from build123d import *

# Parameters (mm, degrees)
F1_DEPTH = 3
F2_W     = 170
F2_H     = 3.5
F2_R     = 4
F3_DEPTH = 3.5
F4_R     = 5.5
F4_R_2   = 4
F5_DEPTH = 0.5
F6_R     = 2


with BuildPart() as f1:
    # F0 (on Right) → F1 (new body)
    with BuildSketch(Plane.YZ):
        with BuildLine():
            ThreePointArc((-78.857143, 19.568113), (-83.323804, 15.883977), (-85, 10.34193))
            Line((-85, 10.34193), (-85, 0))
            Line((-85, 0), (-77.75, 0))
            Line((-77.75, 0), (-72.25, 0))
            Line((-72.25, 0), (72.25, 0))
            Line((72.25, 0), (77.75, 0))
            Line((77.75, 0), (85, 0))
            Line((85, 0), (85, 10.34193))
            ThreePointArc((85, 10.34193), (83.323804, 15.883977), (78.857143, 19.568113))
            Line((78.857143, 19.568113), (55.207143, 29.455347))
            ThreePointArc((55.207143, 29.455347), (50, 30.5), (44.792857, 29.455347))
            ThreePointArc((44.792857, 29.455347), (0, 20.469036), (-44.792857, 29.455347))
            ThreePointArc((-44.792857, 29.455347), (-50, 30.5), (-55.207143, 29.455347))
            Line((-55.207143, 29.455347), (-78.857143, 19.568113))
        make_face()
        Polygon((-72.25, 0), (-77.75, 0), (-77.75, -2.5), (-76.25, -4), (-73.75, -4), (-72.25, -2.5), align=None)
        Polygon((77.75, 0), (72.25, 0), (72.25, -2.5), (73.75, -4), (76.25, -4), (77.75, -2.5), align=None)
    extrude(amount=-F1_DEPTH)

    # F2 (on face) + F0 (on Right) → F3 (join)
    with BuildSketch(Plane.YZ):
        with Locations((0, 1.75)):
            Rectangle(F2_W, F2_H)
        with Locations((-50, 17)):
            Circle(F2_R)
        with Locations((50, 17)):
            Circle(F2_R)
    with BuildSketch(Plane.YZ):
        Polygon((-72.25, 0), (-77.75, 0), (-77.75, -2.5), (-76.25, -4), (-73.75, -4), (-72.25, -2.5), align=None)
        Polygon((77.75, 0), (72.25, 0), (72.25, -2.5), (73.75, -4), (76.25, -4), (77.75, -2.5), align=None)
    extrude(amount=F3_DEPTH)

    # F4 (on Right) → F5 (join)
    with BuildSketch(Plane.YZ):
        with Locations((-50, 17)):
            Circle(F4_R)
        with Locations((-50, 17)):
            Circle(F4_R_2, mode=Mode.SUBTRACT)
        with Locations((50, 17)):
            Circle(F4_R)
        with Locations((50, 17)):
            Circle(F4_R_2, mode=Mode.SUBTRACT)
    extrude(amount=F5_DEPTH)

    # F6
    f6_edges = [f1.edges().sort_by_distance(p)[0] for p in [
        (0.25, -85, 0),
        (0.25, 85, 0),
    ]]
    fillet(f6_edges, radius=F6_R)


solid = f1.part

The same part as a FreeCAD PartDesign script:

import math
import FreeCAD as App
import Part
import Sketcher


def edges_at(feature, points):
    """Names of the edges that pass closest to the given points."""
    edges = feature.Shape.Edges
    near = lambda p: min(range(len(edges)), key=lambda i: edges[i].distToShape(Part.Vertex(*p))[0])
    return sorted({f"Edge{near(p) + 1}" for p in points})

doc = App.newDocument("Part")
params = doc.addObject("Spreadsheet::Sheet", "Params")
for row, (alias, value) in enumerate([
    ("sketch1_radius", "10.000001 mm"),
    ("sketch1_radius2", "10.000001 mm"),
    ("sketch1_width", "2.5 mm"),
    ("sketch1_width2", "144.5 mm"),
    ("sketch1_width3", "2.5 mm"),
    ("pad1_length", "3 mm"),
    ("sketch2_diameter", "8 mm"),
    ("sketch2_width", "170 mm"),
    ("sketch2_width2", "2.5 mm"),
    ("sketch2_width3", "144.5 mm"),
    ("sketch2_height", "3.5 mm"),
    ("pad2_length", "3.5 mm"),
    ("sketch3_diameter", "11 mm"),
    ("sketch3_diameter2", "8 mm"),
    ("pad3_length", "0.5 mm"),
    ("fillet_radius", "2 mm"),
], start=1):
    params.set(f"A{row}", alias)
    params.set(f"B{row}", "=" + value)
    params.setAlias(f"B{row}", alias)

body = doc.addObject("PartDesign::Body", "Body")

# Sketch on YZ plane
sketch1 = body.newObject("Sketcher::SketchObject", "Sketch")
sketch1.AttachmentSupport = (doc.getObject("YZ_Plane"), [""])
sketch1.MapMode = "FlatFace"
sketch1.addGeometry(Part.ArcOfCircle(Part.Circle(App.Vector(-74.999999, 10.341929, 0), App.Vector(0, 0, 1), 10.000001), math.radians(112.688097), math.radians(179.999997)), False)
sketch1.addGeometry(Part.LineSegment(App.Vector(-85, 10.34193, 0), App.Vector(-85, 0, 0)), False)
sketch1.addGeometry(Part.LineSegment(App.Vector(-85, 0, 0), App.Vector(-77.75, 0, 0)), False)
sketch1.addGeometry(Part.LineSegment(App.Vector(-77.75, 0, 0), App.Vector(-77.75, -2.5, 0)), False)
sketch1.addGeometry(Part.LineSegment(App.Vector(-77.75, -2.5, 0), App.Vector(-76.25, -4, 0)), False)
sketch1.addGeometry(Part.LineSegment(App.Vector(-76.25, -4, 0), App.Vector(-73.75, -4, 0)), False)
sketch1.addGeometry(Part.LineSegment(App.Vector(-73.75, -4, 0), App.Vector(-72.25, -2.5, 0)), False)
sketch1.addGeometry(Part.LineSegment(App.Vector(-72.25, -2.5, 0), App.Vector(-72.25, 0, 0)), False)
sketch1.addGeometry(Part.LineSegment(App.Vector(-72.25, 0, 0), App.Vector(72.25, 0, 0)), False)
sketch1.addGeometry(Part.LineSegment(App.Vector(72.25, 0, 0), App.Vector(72.25, -2.5, 0)), False)
sketch1.addGeometry(Part.LineSegment(App.Vector(72.25, -2.5, 0), App.Vector(73.75, -4, 0)), False)
sketch1.addGeometry(Part.LineSegment(App.Vector(73.75, -4, 0), App.Vector(76.25, -4, 0)), False)
sketch1.addGeometry(Part.LineSegment(App.Vector(76.25, -4, 0), App.Vector(77.75, -2.5, 0)), False)
sketch1.addGeometry(Part.LineSegment(App.Vector(77.75, -2.5, 0), App.Vector(77.75, 0, 0)), False)
sketch1.addGeometry(Part.LineSegment(App.Vector(77.75, 0, 0), App.Vector(85, 0, 0)), False)
sketch1.addGeometry(Part.LineSegment(App.Vector(85, 0, 0), App.Vector(85, 10.34193, 0)), False)
sketch1.addGeometry(Part.ArcOfCircle(Part.Circle(App.Vector(74.999999, 10.341929, 0), App.Vector(0, 0, 1), 10.000001), math.radians(0.000003), math.radians(67.311903)), False)
sketch1.addGeometry(Part.LineSegment(App.Vector(78.857143, 19.568113, 0), App.Vector(55.207143, 29.455347, 0)), False)
sketch1.addGeometry(Part.ArcOfCircle(Part.Circle(App.Vector(50, 16.999997, 0), App.Vector(0, 0, 1), 13.500003), math.radians(67.311914), math.radians(112.688086)), False)
sketch1.addGeometry(Part.ArcOfCircle(Part.Circle(App.Vector(0, 136.598659, 0), App.Vector(0, 0, 1), 116.129623), math.radians(-112.688092), math.radians(-67.311908)), False)
sketch1.addGeometry(Part.ArcOfCircle(Part.Circle(App.Vector(-50, 16.999997, 0), App.Vector(0, 0, 1), 13.500003), math.radians(67.311914), math.radians(112.688086)), False)
sketch1.addGeometry(Part.LineSegment(App.Vector(-55.207143, 29.455347, 0), App.Vector(-78.857143, 19.568113, 0)), False)
sketch1.addConstraint(Sketcher.Constraint("Coincident", 0, 2, 1, 1))
sketch1.addConstraint(Sketcher.Constraint("Coincident", 1, 2, 2, 1))
sketch1.addConstraint(Sketcher.Constraint("Coincident", 2, 2, 3, 1))
sketch1.addConstraint(Sketcher.Constraint("Coincident", 3, 2, 4, 1))
sketch1.addConstraint(Sketcher.Constraint("Coincident", 4, 2, 5, 1))
sketch1.addConstraint(Sketcher.Constraint("Coincident", 5, 2, 6, 1))
sketch1.addConstraint(Sketcher.Constraint("Coincident", 6, 2, 7, 1))
sketch1.addConstraint(Sketcher.Constraint("Coincident", 7, 2, 8, 1))
sketch1.addConstraint(Sketcher.Constraint("Coincident", 8, 2, 9, 1))
sketch1.addConstraint(Sketcher.Constraint("Coincident", 9, 2, 10, 1))
sketch1.addConstraint(Sketcher.Constraint("Coincident", 10, 2, 11, 1))
sketch1.addConstraint(Sketcher.Constraint("Coincident", 11, 2, 12, 1))
sketch1.addConstraint(Sketcher.Constraint("Coincident", 12, 2, 13, 1))
sketch1.addConstraint(Sketcher.Constraint("Coincident", 13, 2, 14, 1))
sketch1.addConstraint(Sketcher.Constraint("Coincident", 14, 2, 15, 1))
sketch1.addConstraint(Sketcher.Constraint("Coincident", 15, 2, 16, 1))
sketch1.addConstraint(Sketcher.Constraint("Coincident", 16, 2, 17, 1))
sketch1.addConstraint(Sketcher.Constraint("Coincident", 17, 2, 18, 1))
sketch1.addConstraint(Sketcher.Constraint("Coincident", 18, 2, 19, 2))
sketch1.addConstraint(Sketcher.Constraint("Coincident", 19, 1, 20, 1))
sketch1.addConstraint(Sketcher.Constraint("Coincident", 20, 2, 21, 1))
sketch1.addConstraint(Sketcher.Constraint("Coincident", 21, 2, 0, 1))
sketch1.addConstraint(Sketcher.Constraint("Vertical", 1))
sketch1.addConstraint(Sketcher.Constraint("Horizontal", 2))
sketch1.addConstraint(Sketcher.Constraint("Vertical", 3))
sketch1.addConstraint(Sketcher.Constraint("Horizontal", 5))
sketch1.addConstraint(Sketcher.Constraint("Vertical", 7))
sketch1.addConstraint(Sketcher.Constraint("Horizontal", 8))
sketch1.addConstraint(Sketcher.Constraint("Vertical", 9))
sketch1.addConstraint(Sketcher.Constraint("Horizontal", 11))
sketch1.addConstraint(Sketcher.Constraint("Vertical", 13))
sketch1.addConstraint(Sketcher.Constraint("Horizontal", 14))
sketch1.addConstraint(Sketcher.Constraint("Vertical", 15))
sketch1.addConstraint(Sketcher.Constraint("PointOnObject", 19, 3, -2))
sketch1.addConstraint(Sketcher.Constraint("PointOnObject", 1, 2, -1))
sketch1.addConstraint(Sketcher.Constraint("PointOnObject", 7, 2, -1))
sketch1.addConstraint(Sketcher.Constraint("PointOnObject", 13, 2, -1))
sketch1.addConstraint(Sketcher.Constraint("Radius", 0, 10.000001))
sketch1.addConstraint(Sketcher.Constraint("Radius", 16, 10.000001))
sketch1.addConstraint(Sketcher.Constraint("DistanceX", 5, 1, 5, 2, 2.5))
sketch1.addConstraint(Sketcher.Constraint("DistanceX", 8, 1, 8, 2, 144.5))
sketch1.addConstraint(Sketcher.Constraint("DistanceX", 11, 1, 11, 2, 2.5))
sketch1.addConstraint(Sketcher.Constraint("DistanceY", 3, 2, 3, 1, 2.5))
sketch1.addConstraint(Sketcher.Constraint("DistanceY", 7, 1, 7, 2, 2.5))
sketch1.addConstraint(Sketcher.Constraint("DistanceY", 9, 2, 9, 1, 2.5))
sketch1.addConstraint(Sketcher.Constraint("DistanceY", 13, 1, 13, 2, 2.5))
sketch1.addConstraint(Sketcher.Constraint("DistanceX", 0, 3, -1, 1, 74.999999))
sketch1.addConstraint(Sketcher.Constraint("DistanceX", -1, 1, 16, 3, 74.999999))
sketch1.addConstraint(Sketcher.Constraint("DistanceX", -1, 1, 18, 3, 50.0))
sketch1.addConstraint(Sketcher.Constraint("DistanceX", 20, 3, -1, 1, 50.0))
sketch1.addConstraint(Sketcher.Constraint("DistanceY", 4, 2, -1, 1, 4.0))
sketch1.addConstraint(Sketcher.Constraint("DistanceY", 10, 2, -1, 1, 4.0))
sketch1.addConstraint(Sketcher.Constraint("DistanceX", 3, 2, 5, 2, 4.0))
sketch1.addConstraint(Sketcher.Constraint("DistanceX", 4, 2, 6, 2, 4.0))
sketch1.addConstraint(Sketcher.Constraint("DistanceX", 9, 2, 11, 2, 4.0))
sketch1.addConstraint(Sketcher.Constraint("DistanceX", 10, 2, 12, 2, 4.0))
sketch1.addConstraint(Sketcher.Constraint("DistanceX", 2, 1, 2, 2, 7.25))
sketch1.addConstraint(Sketcher.Constraint("DistanceX", 17, 2, 16, 2, 23.65))
sketch1.addConstraint(Sketcher.Constraint("Radius", 18, 13.500003))
sketch1.addConstraint(Sketcher.Constraint("Radius", 19, 116.129623))
sketch1.addConstraint(Sketcher.Constraint("Radius", 20, 13.500003))
sketch1.addConstraint(Sketcher.Constraint("DistanceY", 1, 2, 1, 1, 10.34193))
sketch1.addConstraint(Sketcher.Constraint("DistanceY", 15, 1, 15, 2, 10.34193))
sketch1.addConstraint(Sketcher.Constraint("Distance", 17, 25.63357))
sketch1.addConstraint(Sketcher.Constraint("Distance", 21, 25.63357))
sketch1.addConstraint(Sketcher.Constraint("DistanceY", -1, 1, 0, 3, 10.341929))
sketch1.addConstraint(Sketcher.Constraint("DistanceY", -1, 1, 16, 3, 10.341929))
sketch1.addConstraint(Sketcher.Constraint("DistanceY", 18, 3, 17, 2, 12.45535))
sketch1.addConstraint(Sketcher.Constraint("DistanceY", 18, 3, 18, 2, 12.45535))
sketch1.addConstraint(Sketcher.Constraint("DistanceY", 20, 3, 19, 1, 12.45535))
sketch1.addConstraint(Sketcher.Constraint("DistanceY", 20, 3, 20, 2, 12.45535))
sketch1.setExpression("Constraints[37]", "Params.sketch1_radius")
sketch1.setExpression("Constraints[38]", "Params.sketch1_radius2")
sketch1.setExpression("Constraints[39]", "Params.sketch1_width")
sketch1.setExpression("Constraints[40]", "Params.sketch1_width2")
sketch1.setExpression("Constraints[41]", "Params.sketch1_width3")
pad1 = body.newObject("PartDesign::Pad", "Pad")
pad1.Profile = sketch1
pad1.setExpression("Length", "Params.pad1_length")
pad1.Reversed = True

# Sketch on YZ plane
sketch2 = body.newObject("Sketcher::SketchObject", "Sketch001")
sketch2.AttachmentSupport = (doc.getObject("YZ_Plane"), [""])
sketch2.MapMode = "FlatFace"
sketch2.addGeometry(Part.LineSegment(App.Vector(-85, 3.5, 0), App.Vector(-85, 0, 0)), False)
sketch2.addGeometry(Part.LineSegment(App.Vector(-85, 0, 0), App.Vector(-77.8, 0, 0)), False)
sketch2.addGeometry(Part.LineSegment(App.Vector(-77.8, 0, 0), App.Vector(-77.8, -2.5, 0)), False)
sketch2.addGeometry(Part.LineSegment(App.Vector(-77.8, -2.5, 0), App.Vector(-76.2, -4, 0)), False)
sketch2.addGeometry(Part.LineSegment(App.Vector(-76.2, -4, 0), App.Vector(-73.8, -4, 0)), False)
sketch2.addGeometry(Part.LineSegment(App.Vector(-73.8, -4, 0), App.Vector(-72.2, -2.5, 0)), False)
sketch2.addGeometry(Part.LineSegment(App.Vector(-72.2, -2.5, 0), App.Vector(-72.2, 0, 0)), False)
sketch2.addGeometry(Part.LineSegment(App.Vector(-72.2, 0, 0), App.Vector(72.2, 0, 0)), False)
sketch2.addGeometry(Part.LineSegment(App.Vector(72.2, 0, 0), App.Vector(72.2, -2.5, 0)), False)
sketch2.addGeometry(Part.LineSegment(App.Vector(72.2, -2.5, 0), App.Vector(73.8, -4, 0)), False)
sketch2.addGeometry(Part.LineSegment(App.Vector(73.8, -4, 0), App.Vector(76.2, -4, 0)), False)
sketch2.addGeometry(Part.LineSegment(App.Vector(76.2, -4, 0), App.Vector(77.8, -2.5, 0)), False)
sketch2.addGeometry(Part.LineSegment(App.Vector(77.8, -2.5, 0), App.Vector(77.8, 0, 0)), False)
sketch2.addGeometry(Part.LineSegment(App.Vector(77.8, 0, 0), App.Vector(85, 0, 0)), False)
sketch2.addGeometry(Part.LineSegment(App.Vector(85, 0, 0), App.Vector(85, 3.5, 0)), False)
sketch2.addGeometry(Part.LineSegment(App.Vector(85, 3.5, 0), App.Vector(-85, 3.5, 0)), False)
sketch2.addGeometry(Part.Circle(App.Vector(-50, 17, 0), App.Vector(0, 0, 1), 4), False)
sketch2.addGeometry(Part.Circle(App.Vector(50, 17, 0), App.Vector(0, 0, 1), 4), False)
sketch2.addConstraint(Sketcher.Constraint("Coincident", 0, 2, 1, 1))
sketch2.addConstraint(Sketcher.Constraint("Coincident", 1, 2, 2, 1))
sketch2.addConstraint(Sketcher.Constraint("Coincident", 2, 2, 3, 1))
sketch2.addConstraint(Sketcher.Constraint("Coincident", 3, 2, 4, 1))
sketch2.addConstraint(Sketcher.Constraint("Coincident", 4, 2, 5, 1))
sketch2.addConstraint(Sketcher.Constraint("Coincident", 5, 2, 6, 1))
sketch2.addConstraint(Sketcher.Constraint("Coincident", 6, 2, 7, 1))
sketch2.addConstraint(Sketcher.Constraint("Coincident", 7, 2, 8, 1))
sketch2.addConstraint(Sketcher.Constraint("Coincident", 8, 2, 9, 1))
sketch2.addConstraint(Sketcher.Constraint("Coincident", 9, 2, 10, 1))
sketch2.addConstraint(Sketcher.Constraint("Coincident", 10, 2, 11, 1))
sketch2.addConstraint(Sketcher.Constraint("Coincident", 11, 2, 12, 1))
sketch2.addConstraint(Sketcher.Constraint("Coincident", 12, 2, 13, 1))
sketch2.addConstraint(Sketcher.Constraint("Coincident", 13, 2, 14, 1))
sketch2.addConstraint(Sketcher.Constraint("Coincident", 14, 2, 15, 1))
sketch2.addConstraint(Sketcher.Constraint("Coincident", 15, 2, 0, 1))
sketch2.addConstraint(Sketcher.Constraint("Vertical", 0))
sketch2.addConstraint(Sketcher.Constraint("Horizontal", 1))
sketch2.addConstraint(Sketcher.Constraint("Vertical", 2))
sketch2.addConstraint(Sketcher.Constraint("Horizontal", 4))
sketch2.addConstraint(Sketcher.Constraint("Vertical", 6))
sketch2.addConstraint(Sketcher.Constraint("Horizontal", 7))
sketch2.addConstraint(Sketcher.Constraint("Vertical", 8))
sketch2.addConstraint(Sketcher.Constraint("Horizontal", 10))
sketch2.addConstraint(Sketcher.Constraint("Vertical", 12))
sketch2.addConstraint(Sketcher.Constraint("Horizontal", 13))
sketch2.addConstraint(Sketcher.Constraint("Vertical", 14))
sketch2.addConstraint(Sketcher.Constraint("Horizontal", 15))
sketch2.addConstraint(Sketcher.Constraint("Equal", 16, 17))
sketch2.addConstraint(Sketcher.Constraint("Symmetric", 6, 2, 7, 2, -1, 1))
sketch2.addConstraint(Sketcher.Constraint("Symmetric", 1, 2, 12, 2, -1, 1))
sketch2.addConstraint(Sketcher.Constraint("Symmetric", 16, 3, 17, 3, -2))
sketch2.addConstraint(Sketcher.Constraint("Symmetric", 4, 2, 9, 2, -2))
sketch2.addConstraint(Sketcher.Constraint("Symmetric", 0, 2, 13, 2, -2))
sketch2.addConstraint(Sketcher.Constraint("Perpendicular", 3, 5))
sketch2.addConstraint(Sketcher.Constraint("Perpendicular", 5, 9))
sketch2.addConstraint(Sketcher.Constraint("Perpendicular", 9, 11))
sketch2.addConstraint(Sketcher.Constraint("Horizontal", 2, 2, 5, 2))
sketch2.addConstraint(Sketcher.Constraint("Horizontal", 5, 2, 8, 2))
sketch2.addConstraint(Sketcher.Constraint("Horizontal", 8, 2, 11, 2))
sketch2.addConstraint(Sketcher.Constraint("Equal", 10, 2))
sketch2.addConstraint(Sketcher.Constraint("Diameter", 16, 8.0))
sketch2.addConstraint(Sketcher.Constraint("DistanceX", 15, 2, 15, 1, 170.0))
sketch2.addConstraint(Sketcher.Constraint("DistanceX", 4, 1, 4, 2, 2.5))
sketch2.addConstraint(Sketcher.Constraint("DistanceX", 7, 1, 7, 2, 144.5))
sketch2.addConstraint(Sketcher.Constraint("DistanceY", 0, 2, 0, 1, 3.5))
sketch2.addConstraint(Sketcher.Constraint("DistanceX", 16, 3, -1, 1, 50.0))
sketch2.addConstraint(Sketcher.Constraint("DistanceY", -1, 1, 16, 3, 17.0))
sketch2.addConstraint(Sketcher.Constraint("DistanceY", 3, 2, -1, 1, 4.0))
sketch2.setExpression("Constraints[41]", "Params.sketch2_diameter")
sketch2.setExpression("Constraints[42]", "Params.sketch2_width")
sketch2.setExpression("Constraints[43]", "Params.sketch2_width2")
sketch2.setExpression("Constraints[44]", "Params.sketch2_width3")
sketch2.setExpression("Constraints[45]", "Params.sketch2_height")
pad2 = body.newObject("PartDesign::Pad", "Pad001")
pad2.Profile = sketch2
pad2.setExpression("Length", "Params.pad2_length")

# Sketch on YZ plane
sketch3 = body.newObject("Sketcher::SketchObject", "Sketch002")
sketch3.AttachmentSupport = (doc.getObject("YZ_Plane"), [""])
sketch3.MapMode = "FlatFace"
sketch3.addGeometry(Part.Circle(App.Vector(-50, 17, 0), App.Vector(0, 0, 1), 5.5), False)
sketch3.addGeometry(Part.Circle(App.Vector(-50, 17, 0), App.Vector(0, 0, 1), 4), False)
sketch3.addGeometry(Part.Circle(App.Vector(50, 17, 0), App.Vector(0, 0, 1), 5.5), False)
sketch3.addGeometry(Part.Circle(App.Vector(50, 17, 0), App.Vector(0, 0, 1), 4), False)
sketch3.addConstraint(Sketcher.Constraint("Coincident", 1, 3, 0, 3))
sketch3.addConstraint(Sketcher.Constraint("Coincident", 3, 3, 2, 3))
sketch3.addConstraint(Sketcher.Constraint("Equal", 0, 2))
sketch3.addConstraint(Sketcher.Constraint("Equal", 1, 3))
sketch3.addConstraint(Sketcher.Constraint("Symmetric", 0, 3, 2, 3, -2))
sketch3.addConstraint(Sketcher.Constraint("Diameter", 0, 11.0))
sketch3.addConstraint(Sketcher.Constraint("Diameter", 1, 8.0))
sketch3.addConstraint(Sketcher.Constraint("DistanceX", 0, 3, -1, 1, 50.0))
sketch3.addConstraint(Sketcher.Constraint("DistanceY", -1, 1, 0, 3, 17.0))
sketch3.setExpression("Constraints[5]", "Params.sketch3_diameter")
sketch3.setExpression("Constraints[6]", "Params.sketch3_diameter2")
pad3 = body.newObject("PartDesign::Pad", "Pad002")
pad3.Profile = sketch3
pad3.setExpression("Length", "Params.pad3_length")
doc.recompute()

fillet = body.newObject("PartDesign::Fillet", "Fillet")
fillet.Base = (pad3, edges_at(pad3, [(0.25, -85, 0), (0.25, 85, 0)]))
fillet.setExpression("Radius", "Params.fillet_radius")

doc.recompute()
